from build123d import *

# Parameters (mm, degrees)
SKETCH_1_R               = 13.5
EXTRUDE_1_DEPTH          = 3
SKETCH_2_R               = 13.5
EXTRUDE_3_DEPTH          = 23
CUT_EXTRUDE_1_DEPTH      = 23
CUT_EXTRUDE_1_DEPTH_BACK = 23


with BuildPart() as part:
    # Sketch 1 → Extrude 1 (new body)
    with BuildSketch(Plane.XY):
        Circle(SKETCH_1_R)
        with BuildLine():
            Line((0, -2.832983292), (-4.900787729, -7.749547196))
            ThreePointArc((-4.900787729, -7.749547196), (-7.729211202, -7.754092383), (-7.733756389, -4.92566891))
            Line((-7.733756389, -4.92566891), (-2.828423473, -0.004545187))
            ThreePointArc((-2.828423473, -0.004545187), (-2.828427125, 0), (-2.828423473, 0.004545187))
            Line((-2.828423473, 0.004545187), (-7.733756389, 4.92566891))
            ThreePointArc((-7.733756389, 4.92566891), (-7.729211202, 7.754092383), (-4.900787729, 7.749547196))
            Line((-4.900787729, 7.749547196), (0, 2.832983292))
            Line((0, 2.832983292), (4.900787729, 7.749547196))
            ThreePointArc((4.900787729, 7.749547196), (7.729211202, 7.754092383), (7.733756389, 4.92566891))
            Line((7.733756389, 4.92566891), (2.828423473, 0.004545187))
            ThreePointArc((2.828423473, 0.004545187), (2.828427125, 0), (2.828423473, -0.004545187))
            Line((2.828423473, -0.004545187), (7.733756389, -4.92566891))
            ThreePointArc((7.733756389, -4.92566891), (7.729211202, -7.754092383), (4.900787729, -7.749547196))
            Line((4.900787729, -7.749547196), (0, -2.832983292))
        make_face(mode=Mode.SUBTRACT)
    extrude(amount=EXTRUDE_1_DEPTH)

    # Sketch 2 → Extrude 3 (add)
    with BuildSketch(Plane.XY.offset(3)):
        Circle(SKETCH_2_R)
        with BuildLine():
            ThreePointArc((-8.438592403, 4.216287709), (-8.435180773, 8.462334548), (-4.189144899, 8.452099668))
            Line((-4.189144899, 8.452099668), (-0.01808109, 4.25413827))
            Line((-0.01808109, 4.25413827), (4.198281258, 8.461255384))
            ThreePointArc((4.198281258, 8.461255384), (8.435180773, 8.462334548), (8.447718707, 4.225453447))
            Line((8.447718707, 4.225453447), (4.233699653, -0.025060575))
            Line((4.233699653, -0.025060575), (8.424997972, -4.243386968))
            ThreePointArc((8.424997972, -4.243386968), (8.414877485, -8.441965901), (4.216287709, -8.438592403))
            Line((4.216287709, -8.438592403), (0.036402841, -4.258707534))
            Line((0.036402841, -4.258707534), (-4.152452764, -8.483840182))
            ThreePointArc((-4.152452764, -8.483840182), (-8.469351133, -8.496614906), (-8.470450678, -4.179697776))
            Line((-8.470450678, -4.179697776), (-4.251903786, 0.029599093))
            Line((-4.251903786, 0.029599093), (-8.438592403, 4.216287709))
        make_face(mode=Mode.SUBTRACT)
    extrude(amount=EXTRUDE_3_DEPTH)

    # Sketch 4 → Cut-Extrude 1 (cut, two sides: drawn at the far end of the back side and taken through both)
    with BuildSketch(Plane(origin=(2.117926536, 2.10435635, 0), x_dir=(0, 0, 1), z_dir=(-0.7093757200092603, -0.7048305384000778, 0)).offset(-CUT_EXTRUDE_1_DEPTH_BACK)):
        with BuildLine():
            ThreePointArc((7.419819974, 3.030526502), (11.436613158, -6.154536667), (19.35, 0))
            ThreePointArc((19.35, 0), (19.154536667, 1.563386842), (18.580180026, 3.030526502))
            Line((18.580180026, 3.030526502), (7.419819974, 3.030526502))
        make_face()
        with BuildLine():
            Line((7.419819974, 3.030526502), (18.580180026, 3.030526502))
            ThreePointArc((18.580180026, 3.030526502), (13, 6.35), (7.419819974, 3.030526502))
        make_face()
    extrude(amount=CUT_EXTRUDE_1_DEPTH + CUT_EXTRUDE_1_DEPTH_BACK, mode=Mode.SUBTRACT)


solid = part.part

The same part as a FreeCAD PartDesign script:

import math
import FreeCAD as App
import Part
import Sketcher

V = App.Vector
Q = App.Units.Quantity

doc = App.newDocument("Part")
body = doc.addObject("PartDesign::Body", "Body")

sketch1 = doc.addObject("Sketcher::SketchObject", "Sketch")
body.addObject(sketch1)
sketch1.AttachmentSupport = (doc.XY_Plane, [""])
sketch1.MapMode = "FlatFace"
sketch1.addGeometry([
    Part.Circle(V(0, 0, 0), V(0, 0, 1), 13.5),
    Part.LineSegment(V(4.900788, -7.749547, 0), V(0, -2.832983, 0)),
    Part.LineSegment(V(0, -2.832983, 0), V(-4.900788, -7.749547, 0)),
    Part.ArcOfCircle(Part.Circle(V(-6.317272, -6.337608, 0), V(0, 0, 1), 2), math.radians(135.092072), math.radians(315.092072)),
    Part.LineSegment(V(-7.733756, -4.925669, 0), V(-2.828423, -0.004545, 0)),
    Part.ArcOfCircle(Part.Circle(V(-0.000013, 0, 0), V(0, 0, 1), 2.828414), math.radians(179.907927), math.radians(180.092073)),
    Part.LineSegment(V(-2.828423, 0.004545, 0), V(-7.733756, 4.925669, 0)),
    Part.ArcOfCircle(Part.Circle(V(-6.317272, 6.337608, 0), V(0, 0, 1), 2), math.radians(44.907928), math.radians(224.907928)),
    Part.LineSegment(V(-4.900788, 7.749547, 0), V(0, 2.832983, 0)),
    Part.LineSegment(V(0, 2.832983, 0), V(4.900788, 7.749547, 0)),
    Part.ArcOfCircle(Part.Circle(V(6.317272, 6.337608, 0), V(0, 0, 1), 2), math.radians(-44.907928), math.radians(135.092072)),
    Part.LineSegment(V(7.733756, 4.925669, 0), V(2.828423, 0.004545, 0)),
    Part.ArcOfCircle(Part.Circle(V(0.000013, 0, 0), V(0, 0, 1), 2.828414), math.radians(-0.092073), math.radians(0.092073)),
    Part.LineSegment(V(2.828423, -0.004545, 0), V(7.733756, -4.925669, 0)),
    Part.ArcOfCircle(Part.Circle(V(6.317272, -6.337608, 0), V(0, 0, 1), 2), math.radians(-135.092072), math.radians(44.907928)),
], False)
sketch1.addConstraint([
    Sketcher.Constraint("Coincident", 1, 2, 2, 1),
    Sketcher.Constraint("Tangent", 2, 2, 3, 2),
    Sketcher.Constraint("Tangent", 3, 1, 4, 1),
    Sketcher.Constraint("Coincident", 4, 2, 5, 2),
    Sketcher.Constraint("Coincident", 5, 1, 6, 1),
    Sketcher.Constraint("Tangent", 6, 2, 7, 2),
    Sketcher.Constraint("Tangent", 7, 1, 8, 1),
    Sketcher.Constraint("Coincident", 8, 2, 9, 1),
    Sketcher.Constraint("Tangent", 9, 2, 10, 2),
    Sketcher.Constraint("Tangent", 10, 1, 11, 1),
    Sketcher.Constraint("Coincident", 11, 2, 12, 2),
    Sketcher.Constraint("Coincident", 12, 1, 13, 1),
    Sketcher.Constraint("Tangent", 13, 2, 14, 2),
    Sketcher.Constraint("Tangent", 14, 1, 1, 1),
    Sketcher.Constraint("Coincident", 0, 3, -1, 1),
    Sketcher.Constraint("Equal", 3, 7),
    Sketcher.Constraint("Equal", 7, 10),
    Sketcher.Constraint("Equal", 5, 12),
    Sketcher.Constraint("Equal", 10, 14),
    Sketcher.Constraint("Symmetric", 3, 3, 10, 3, -1, 1),
    Sketcher.Constraint("Symmetric", 5, 3, 12, 3, -1, 1),
    Sketcher.Constraint("Symmetric", 7, 3, 14, 3, -1, 1),
    Sketcher.Constraint("Symmetric", 1, 2, 8, 2, -1, 1),
    Sketcher.Constraint("Symmetric", 7, 3, 10, 3, -2),
    Sketcher.Constraint("PointOnObject", 5, 3, -1),
    Sketcher.Constraint("PointOnObject", 1, 2, -2),
    Sketcher.Constraint("Parallel", 2, 4),
    Sketcher.Constraint("Parallel", 1, 6),
    Sketcher.Constraint("Parallel", 9, 11),
    Sketcher.Constraint("Parallel", 8, 13),
    Sketcher.Constraint("Diameter", 0, Q("27 mm")),
    Sketcher.Constraint("Radius", 3, Q("2 mm")),
    Sketcher.Constraint("Radius", 5, Q("2.828414 mm")),
    Sketcher.Constraint("DistanceX", 2, 2, 12, 3, Q("4.900801 mm")),
    Sketcher.Constraint("DistanceY", 3, 3, -1, 1, Q("6.337608 mm")),
    Sketcher.Constraint("DistanceY", 3, 1, -1, 1, Q("4.925669 mm")),
    Sketcher.Constraint("DistanceX", 3, 3, 5, 3, Q("6.317259 mm")),
])
pad1 = doc.addObject("PartDesign::Pad", "Pad")
body.addObject(pad1)
pad1.Profile = sketch1
pad1.Length = 3

sketch2 = doc.addObject("Sketcher::SketchObject", "Sketch001")
body.addObject(sketch2)
sketch2.AttachmentSupport = (doc.XY_Plane, [""])
sketch2.MapMode = "FlatFace"
sketch2.AttachmentOffset = App.Placement(V(0, 0, 3), App.Rotation())
sketch2.addGeometry([
    Part.Circle(V(0, 0, 0), V(0, 0, 1), 13.5),
    Part.LineSegment(V(-4.3, 0, 0), V(-8.4, 4.2, 0)),
    Part.ArcOfCircle(Part.Circle(V(-6.3, 6.3, 0), V(0, 0, 1), 3), math.radians(45), math.radians(225)),
    Part.LineSegment(V(-4.2, 8.5, 0), V(0, 4.3, 0)),
    Part.LineSegment(V(0, 4.3, 0), V(4.2, 8.5, 0)),
    Part.ArcOfCircle(Part.Circle(V(6.3, 6.3, 0), V(0, 0, 1), 3), math.radians(-45), math.radians(135)),
    Part.LineSegment(V(8.4, 4.2, 0), V(4.2, 0, 0)),
    Part.LineSegment(V(4.2, 0, 0), V(8.4, -4.2, 0)),
    Part.ArcOfCircle(Part.Circle(V(6.3, -6.3, 0), V(0, 0, 1), 3), math.radians(-135), math.radians(45)),
    Part.LineSegment(V(4.2, -8.4, 0), V(0, -4.3, 0)),
    Part.LineSegment(V(0, -4.3, 0), V(-4.2, -8.5, 0)),
    Part.ArcOfCircle(Part.Circle(V(-6.3, -6.3, 0), V(0, 0, 1), 3), math.radians(135), math.radians(315)),
    Part.LineSegment(V(-8.5, -4.2, 0), V(-4.3, 0, 0)),
], False)
sketch2.addConstraint([
    Sketcher.Constraint("Tangent", 1, 2, 2, 2),
    Sketcher.Constraint("Tangent", 2, 1, 3, 1),
    Sketcher.Constraint("Coincident", 3, 2, 4, 1),
    Sketcher.Constraint("Tangent", 4, 2, 5, 2),
    Sketcher.Constraint("Tangent", 5, 1, 6, 1),
    Sketcher.Constraint("Coincident", 6, 2, 7, 1),
    Sketcher.Constraint("Tangent", 7, 2, 8, 2),
    Sketcher.Constraint("Tangent", 8, 1, 9, 1),
    Sketcher.Constraint("Coincident", 9, 2, 10, 1),
    Sketcher.Constraint("Tangent", 10, 2, 11, 2),
    Sketcher.Constraint("Tangent", 11, 1, 12, 1),
    Sketcher.Constraint("Coincident", 12, 2, 1, 1),
    Sketcher.Constraint("Coincident", 0, 3, -1, 1),
    Sketcher.Constraint("Equal", 2, 5),
    Sketcher.Constraint("Symmetric", 2, 3, 8, 3, -1, 1),
    Sketcher.Constraint("Symmetric", 5, 3, 11, 3, -1, 1),
    Sketcher.Constraint("Symmetric", 2, 3, 5, 3, -2),
    Sketcher.Constraint("Parallel", 3, 7),
    Sketcher.Constraint("Parallel", 1, 9),
    Sketcher.Constraint("Parallel", 6, 10),
    Sketcher.Constraint("Parallel", 4, 12),
    Sketcher.Constraint("Diameter", 0, Q("27 mm")),
    Sketcher.Constraint("Radius", 2, Q("3 mm")),
    Sketcher.Constraint("Angle", 1, Q("135 deg")),
    Sketcher.Constraint("Radius", 8, Q("2.971241 mm")),
    Sketcher.Constraint("Radius", 11, Q("3.048402 mm")),
    Sketcher.Constraint("DistanceY", -1, 1, 2, 1, Q("8.4521 mm")),
    Sketcher.Constraint("DistanceX", -1, 1, 6, 2, Q("4.2337 mm")),
    Sketcher.Constraint("DistanceY", -1, 1, 12, 2, Q("0.029599 mm")),
    Sketcher.Constraint("DistanceY", 5, 1, 4, 2, Q("4.235802 mm")),
    Sketcher.Constraint("DistanceX", 3, 2, 5, 1, Q("8.4658 mm")),
])
pad2 = doc.addObject("PartDesign::Pad", "Pad001")
body.addObject(pad2)
pad2.Profile = sketch2
pad2.Length = 23

sketch3 = doc.addObject("Sketcher::SketchObject", "Sketch002")
body.addObject(sketch3)
sketch3.Placement = App.Placement(V(2.117927, 2.104356, 0), App.Rotation(V(0, 0, 1), V(-0.704830538, 0.70937572, 0), V(-0.70937572, -0.704830538, 0), "ZXY"))
sketch3.addGeometry([
    Part.ArcOfCircle(Part.Circle(V(13, 0, 0), V(0, 0, 1), 6.3), math.radians(151), math.radians(360)),
    Part.ArcOfCircle(Part.Circle(V(13, 0, 0), V(0, 0, 1), 6.3), math.radians(0), math.radians(29)),
    Part.ArcOfCircle(Part.Circle(V(13, 0, 0), V(0, 0, 1), 6.3), math.radians(29), math.radians(151)),
], False)
sketch3.addConstraint([
    Sketcher.Constraint("Tangent", 0, 2, 1, 1),
    Sketcher.Constraint("Tangent", 1, 2, 2, 1),
    Sketcher.Constraint("Tangent", 2, 2, 0, 1),
    Sketcher.Constraint("PointOnObject", 0, 3, -1),
    Sketcher.Constraint("PointOnObject", 0, 2, -1),
    Sketcher.Constraint("Horizontal", 1, 2, 2, 2),
    Sketcher.Constraint("Radius", 0, Q("6.35 mm")),
    Sketcher.Constraint("DistanceX", -1, 1, 0, 3, Q("13 mm")),
    Sketcher.Constraint("DistanceX", -1, 1, 1, 2, Q("18.58018 mm")),
])
pocket1 = doc.addObject("PartDesign::Pocket", "Pocket")
body.addObject(pocket1)
pocket1.Profile = sketch3
pocket1.Type = "ThroughAll"
pocket1.Midplane = True

doc.recompute()
